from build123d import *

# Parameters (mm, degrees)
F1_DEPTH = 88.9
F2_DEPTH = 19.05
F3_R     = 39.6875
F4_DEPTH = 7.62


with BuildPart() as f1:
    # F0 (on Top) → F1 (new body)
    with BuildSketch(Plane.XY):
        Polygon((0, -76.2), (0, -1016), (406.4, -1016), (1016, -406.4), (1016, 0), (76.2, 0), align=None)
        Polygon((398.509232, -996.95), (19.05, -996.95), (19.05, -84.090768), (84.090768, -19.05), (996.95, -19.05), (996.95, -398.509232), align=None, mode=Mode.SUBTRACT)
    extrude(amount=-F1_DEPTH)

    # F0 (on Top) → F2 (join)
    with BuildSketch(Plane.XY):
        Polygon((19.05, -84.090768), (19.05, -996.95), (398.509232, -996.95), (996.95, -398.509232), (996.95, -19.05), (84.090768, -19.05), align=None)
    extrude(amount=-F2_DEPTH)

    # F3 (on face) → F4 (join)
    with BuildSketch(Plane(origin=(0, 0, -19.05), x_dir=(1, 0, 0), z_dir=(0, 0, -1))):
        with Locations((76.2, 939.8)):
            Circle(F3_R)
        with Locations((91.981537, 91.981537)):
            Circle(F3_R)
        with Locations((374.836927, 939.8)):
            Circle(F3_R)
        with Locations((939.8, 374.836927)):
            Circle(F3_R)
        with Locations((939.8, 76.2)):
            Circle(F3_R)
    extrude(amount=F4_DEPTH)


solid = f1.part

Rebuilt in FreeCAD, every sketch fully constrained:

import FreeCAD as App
import Part
import Sketcher
from FreeCAD import Vector
Q = App.Units.Quantity


def add_polygon(sketch, points):
    """Adds a closed chain of lines whose ends are joined by coincident constraints."""
    first, n = sketch.GeometryCount, len(points)
    for a, b in zip(points, points[1:] + points[:1]):
        sketch.addGeometry(Part.LineSegment(App.Vector(*a, 0), App.Vector(*b, 0)), False)
    for i in range(n):
        sketch.addConstraint(Sketcher.Constraint("Coincident", first + i, 2, first + (i + 1) % n, 1))

doc = App.newDocument("Part")
params = doc.addObject("Spreadsheet::Sheet", "Params")
for row, (alias, value) in enumerate([
    ("sketch1_width", "16 in"),
    ("sketch1_width2", "37 in"),
    ("pad1_length", "3.5 in"),
    ("pad2_length", "0.75 in"),
    ("sketch3_diameter", "3.125 in"),
    ("pad3_length", "0.3 in"),
], start=1):
    params.set(f"A{row}", alias)
    params.set(f"B{row}", "=" + value)
    params.setAlias(f"B{row}", alias)

body = doc.addObject("PartDesign::Body", "Body")

sketch1 = body.newObject("Sketcher::SketchObject", "Sketch")
sketch1.AttachmentSupport = (doc.getObject("XY_Plane"), [""])
sketch1.MapMode = "FlatFace"
add_polygon(sketch1, [(0, -76), (0, -1016), (406, -1016), (1016, -406), (1016, 0), (76, 0)])
add_polygon(sketch1, [(997, -399), (399, -997), (19, -997), (19, -84), (84, -19), (997, -19)])
sketch1.addConstraint([
    Sketcher.Constraint("Vertical", 0),
    Sketcher.Constraint("Horizontal", 1),
    Sketcher.Constraint("Vertical", 3),
    Sketcher.Constraint("Horizontal", 4),
    Sketcher.Constraint("Horizontal", 7),
    Sketcher.Constraint("Vertical", 8),
    Sketcher.Constraint("Horizontal", 10),
    Sketcher.Constraint("Vertical", 11),
    Sketcher.Constraint("PointOnObject", 0, 2, -2),
    Sketcher.Constraint("PointOnObject", 3, 2, -1),
    Sketcher.Constraint("Parallel", 2, 5),
    Sketcher.Constraint("Parallel", 5, 6),
    Sketcher.Constraint("Parallel", 6, 9),
    Sketcher.Constraint("Equal", 4, 0),
    Sketcher.Constraint("Equal", 1, 3),
    Sketcher.Constraint("Equal", 10, 8),
    Sketcher.Constraint("DistanceX", 1, 1, 1, 2, Q("16 in")),
    Sketcher.Constraint("DistanceX", 4, 2, 4, 1, Q("37 in")),
    Sketcher.Constraint("DistanceY", 0, 2, -1, 1, Q("40 in")),
    Sketcher.Constraint("DistanceY", 7, 2, 9, 2, Q("38.5 in")),
    Sketcher.Constraint("DistanceY", 6, 2, -1, 1, Q("39.25 in")),
    Sketcher.Constraint("DistanceX", -1, 1, 7, 2, Q("0.75 in")),
    Sketcher.Constraint("DistanceX", 7, 2, 7, 1, 379.459232),
    Sketcher.Constraint("DistanceX", 10, 1, 10, 2, 912.859232),
])
sketch1.setExpression("Constraints[28]", "Params.sketch1_width")
sketch1.setExpression("Constraints[29]", "Params.sketch1_width2")
pad1 = body.newObject("PartDesign::Pad", "Pad")
pad1.Profile = sketch1
pad1.setExpression("Length", "Params.pad1_length")
pad1.Reversed = True

sketch2 = body.newObject("Sketcher::SketchObject", "Sketch001")
sketch2.AttachmentSupport = (doc.getObject("XY_Plane"), [""])
sketch2.MapMode = "FlatFace"
add_polygon(sketch2, [(19, -84), (19, -997), (399, -997), (997, -399), (997, -19), (84, -19)])
sketch2.addConstraint([
    Sketcher.Constraint("Vertical", 0),
    Sketcher.Constraint("Horizontal", 1),
    Sketcher.Constraint("Vertical", 3),
    Sketcher.Constraint("Horizontal", 4),
    Sketcher.Constraint("Parallel", 2, 5),
    Sketcher.Constraint("Equal", 4, 0),
    Sketcher.Constraint("Equal", 1, 3),
    Sketcher.Constraint("DistanceX", 0, 2, 2, 2, Q("38.5 in")),
    Sketcher.Constraint("DistanceX", -1, 1, 0, 2, Q("0.75 in")),
    Sketcher.Constraint("DistanceY", 0, 2, -1, 1, Q("39.25 in")),
    Sketcher.Constraint("DistanceX", 1, 1, 1, 2, 379.459232),
    Sketcher.Constraint("DistanceX", 4, 2, 4, 1, 912.859232),
])
pad2 = body.newObject("PartDesign::Pad", "Pad001")
pad2.Profile = sketch2
pad2.setExpression("Length", "Params.pad2_length")
pad2.Reversed = True

sketch3 = body.newObject("Sketcher::SketchObject", "Sketch002")
sketch3.AttachmentSupport = (doc.getObject("XY_Plane"), [""])
sketch3.MapMode = "FlatFace"
sketch3.AttachmentOffset = App.Placement(Vector(0, 0, -0.75 * 25.4), App.Rotation())
sketch3.addGeometry([
    Part.Circle(Vector(76, -940, 0), Vector(0, 0, 1), 40),
    Part.Circle(Vector(92, -92, 0), Vector(0, 0, 1), 40),
    Part.Circle(Vector(375, -940, 0), Vector(0, 0, 1), 40),
    Part.Circle(Vector(940, -375, 0), Vector(0, 0, 1), 40),
    Part.Circle(Vector(940, -76, 0), Vector(0, 0, 1), 40),
], False)
sketch3.addConstraint([
    Sketcher.Constraint("Equal", 0, 1),
    Sketcher.Constraint("Equal", 1, 2),
    Sketcher.Constraint("Equal", 2, 3),
    Sketcher.Constraint("Equal", 3, 4),
    Sketcher.Constraint("Horizontal", 0, 3, 2, 3),
    Sketcher.Constraint("Vertical", 3, 3, 4, 3),
    Sketcher.Constraint("Diameter", 0, Q("3.125 in")),
    Sketcher.Constraint("DistanceX", -1, 1, 0, 3, Q("3 in")),
    Sketcher.Constraint("DistanceY", 0, 3, -1, 1, Q("37 in")),
    Sketcher.Constraint("DistanceX", -1, 1, 3, 3, Q("37 in")),
    Sketcher.Constraint("DistanceY", 4, 3, -1, 1, Q("3 in")),
    Sketcher.Constraint("DistanceX", 1, 3, 2, 3, 282.85539),
    Sketcher.Constraint("DistanceY", 3, 3, 1, 3, 282.85539),
    Sketcher.Constraint("DistanceX", -1, 1, 1, 3, 91.981537),
    Sketcher.Constraint("DistanceY", 1, 3, -1, 1, 91.981537),
])
sketch3.setExpression("Constraints[6]", "Params.sketch3_diameter")
pad3 = body.newObject("PartDesign::Pad", "Pad002")
pad3.Profile = sketch3
pad3.setExpression("Length", "Params.pad3_length")
pad3.Reversed = True

doc.recompute()
